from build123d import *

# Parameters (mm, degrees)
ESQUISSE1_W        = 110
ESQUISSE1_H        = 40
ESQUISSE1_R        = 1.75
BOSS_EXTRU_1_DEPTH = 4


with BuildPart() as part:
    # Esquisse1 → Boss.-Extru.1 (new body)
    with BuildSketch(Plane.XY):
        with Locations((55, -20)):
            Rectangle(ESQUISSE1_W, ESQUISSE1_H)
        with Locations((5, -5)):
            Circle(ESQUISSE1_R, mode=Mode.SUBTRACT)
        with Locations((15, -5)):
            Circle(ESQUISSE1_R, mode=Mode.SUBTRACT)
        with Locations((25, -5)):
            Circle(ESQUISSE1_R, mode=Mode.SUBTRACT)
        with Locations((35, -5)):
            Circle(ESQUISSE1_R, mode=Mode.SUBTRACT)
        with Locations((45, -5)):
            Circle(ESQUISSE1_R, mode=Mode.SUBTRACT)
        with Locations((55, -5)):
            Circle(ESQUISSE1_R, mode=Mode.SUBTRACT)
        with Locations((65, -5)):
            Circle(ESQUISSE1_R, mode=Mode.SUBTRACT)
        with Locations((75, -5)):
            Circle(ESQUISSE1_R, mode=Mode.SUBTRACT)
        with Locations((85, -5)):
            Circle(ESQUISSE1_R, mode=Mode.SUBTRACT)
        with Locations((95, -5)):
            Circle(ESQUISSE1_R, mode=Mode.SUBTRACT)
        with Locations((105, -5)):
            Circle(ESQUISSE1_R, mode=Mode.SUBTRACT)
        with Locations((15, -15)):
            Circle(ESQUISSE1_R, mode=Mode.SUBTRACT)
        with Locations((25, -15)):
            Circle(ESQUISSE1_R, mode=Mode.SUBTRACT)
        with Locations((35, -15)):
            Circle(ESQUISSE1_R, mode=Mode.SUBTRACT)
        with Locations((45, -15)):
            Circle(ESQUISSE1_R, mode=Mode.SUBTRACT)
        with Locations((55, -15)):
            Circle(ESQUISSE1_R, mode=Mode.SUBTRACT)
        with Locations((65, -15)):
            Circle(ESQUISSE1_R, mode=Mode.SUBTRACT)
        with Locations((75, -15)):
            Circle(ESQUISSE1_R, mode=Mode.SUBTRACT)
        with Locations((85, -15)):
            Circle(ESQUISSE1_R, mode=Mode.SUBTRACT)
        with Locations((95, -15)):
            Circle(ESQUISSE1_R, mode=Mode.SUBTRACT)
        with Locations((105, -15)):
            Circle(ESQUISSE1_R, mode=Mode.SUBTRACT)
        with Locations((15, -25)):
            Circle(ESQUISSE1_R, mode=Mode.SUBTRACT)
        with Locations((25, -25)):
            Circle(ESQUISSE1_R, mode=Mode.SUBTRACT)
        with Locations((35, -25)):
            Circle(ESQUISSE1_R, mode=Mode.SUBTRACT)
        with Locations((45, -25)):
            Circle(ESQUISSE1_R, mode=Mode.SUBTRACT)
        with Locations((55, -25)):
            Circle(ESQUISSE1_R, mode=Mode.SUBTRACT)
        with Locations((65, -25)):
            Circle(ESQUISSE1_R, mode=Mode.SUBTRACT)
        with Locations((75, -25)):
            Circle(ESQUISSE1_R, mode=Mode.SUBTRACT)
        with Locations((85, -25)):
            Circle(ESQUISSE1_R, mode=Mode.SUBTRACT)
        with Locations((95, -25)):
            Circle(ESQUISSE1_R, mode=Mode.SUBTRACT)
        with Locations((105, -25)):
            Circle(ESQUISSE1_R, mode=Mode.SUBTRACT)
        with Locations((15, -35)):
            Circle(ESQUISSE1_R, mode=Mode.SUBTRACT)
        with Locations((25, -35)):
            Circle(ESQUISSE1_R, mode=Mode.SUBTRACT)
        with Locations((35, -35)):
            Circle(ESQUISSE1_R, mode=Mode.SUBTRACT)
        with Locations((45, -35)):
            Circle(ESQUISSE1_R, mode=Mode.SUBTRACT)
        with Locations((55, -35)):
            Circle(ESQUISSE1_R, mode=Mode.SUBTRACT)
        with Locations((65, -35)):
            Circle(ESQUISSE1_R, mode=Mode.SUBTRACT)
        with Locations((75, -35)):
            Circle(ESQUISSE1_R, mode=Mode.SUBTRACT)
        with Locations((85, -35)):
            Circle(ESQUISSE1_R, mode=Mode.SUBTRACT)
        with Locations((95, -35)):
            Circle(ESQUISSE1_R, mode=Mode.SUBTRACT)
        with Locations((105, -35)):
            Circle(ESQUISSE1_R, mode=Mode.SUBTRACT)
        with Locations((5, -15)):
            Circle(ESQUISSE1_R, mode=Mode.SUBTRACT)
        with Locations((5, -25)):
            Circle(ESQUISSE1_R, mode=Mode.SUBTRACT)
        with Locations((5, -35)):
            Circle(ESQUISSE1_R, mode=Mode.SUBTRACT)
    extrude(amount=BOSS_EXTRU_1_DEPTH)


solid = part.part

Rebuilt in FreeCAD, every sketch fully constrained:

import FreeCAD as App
import Part
import Sketcher

doc = App.newDocument("Part")
body = doc.addObject("PartDesign::Body", "Body")

# Sketch on XY plane
sketch1 = body.newObject("Sketcher::SketchObject", "Sketch")
sketch1.AttachmentSupport = (doc.getObject("XY_Plane"), [""])
sketch1.MapMode = "FlatFace"
sketch1.addGeometry([
    Part.LineSegment(App.Vector(0, 0, 0), App.Vector(0, -40, 0)),  # 0
    Part.LineSegment(App.Vector(0, -40, 0), App.Vector(110, -40, 0)),  # 1
    Part.LineSegment(App.Vector(110, -40, 0), App.Vector(110, 0, 0)),  # 2
    Part.LineSegment(App.Vector(110, 0, 0), App.Vector(0, 0, 0)),  # 3
    Part.Circle(App.Vector(5, -35, 0), App.Vector(0, 0, 1), 1.8),  # 4
    Part.Circle(App.Vector(15, -35, 0), App.Vector(0, 0, 1), 1.8),  # 5
    Part.Circle(App.Vector(25, -35, 0), App.Vector(0, 0, 1), 1.8),  # 6
    Part.Circle(App.Vector(35, -35, 0), App.Vector(0, 0, 1), 1.8),  # 7
    Part.Circle(App.Vector(45, -35, 0), App.Vector(0, 0, 1), 1.8),  # 8
    Part.Circle(App.Vector(5, -25, 0), App.Vector(0, 0, 1), 1.8),  # 9
    Part.Circle(App.Vector(15, -25, 0), App.Vector(0, 0, 1), 1.8),  # 10
    Part.Circle(App.Vector(25, -25, 0), App.Vector(0, 0, 1), 1.8),  # 11
    Part.Circle(App.Vector(35, -25, 0), App.Vector(0, 0, 1), 1.8),  # 12
    Part.Circle(App.Vector(45, -25, 0), App.Vector(0, 0, 1), 1.8),  # 13
    Part.Circle(App.Vector(55, -35, 0), App.Vector(0, 0, 1), 1.8),  # 14
    Part.Circle(App.Vector(65, -35, 0), App.Vector(0, 0, 1), 1.8),  # 15
    Part.Circle(App.Vector(75, -35, 0), App.Vector(0, 0, 1), 1.8),  # 16
    Part.Circle(App.Vector(85, -35, 0), App.Vector(0, 0, 1), 1.8),  # 17
    Part.Circle(App.Vector(95, -35, 0), App.Vector(0, 0, 1), 1.8),  # 18
    Part.Circle(App.Vector(105, -35, 0), App.Vector(0, 0, 1), 1.8),  # 19
    Part.Circle(App.Vector(55, -25, 0), App.Vector(0, 0, 1), 1.8),  # 20
    Part.Circle(App.Vector(65, -25, 0), App.Vector(0, 0, 1), 1.8),  # 21
    Part.Circle(App.Vector(75, -25, 0), App.Vector(0, 0, 1), 1.8),  # 22
    Part.Circle(App.Vector(85, -25, 0), App.Vector(0, 0, 1), 1.8),  # 23
    Part.Circle(App.Vector(95, -25, 0), App.Vector(0, 0, 1), 1.8),  # 24
    Part.Circle(App.Vector(105, -25, 0), App.Vector(0, 0, 1), 1.8),  # 25
    Part.Circle(App.Vector(5, -15, 0), App.Vector(0, 0, 1), 1.8),  # 26
    Part.Circle(App.Vector(15, -15, 0), App.Vector(0, 0, 1), 1.8),  # 27
    Part.Circle(App.Vector(25, -15, 0), App.Vector(0, 0, 1), 1.8),  # 28
    Part.Circle(App.Vector(35, -15, 0), App.Vector(0, 0, 1), 1.8),  # 29
    Part.Circle(App.Vector(45, -15, 0), App.Vector(0, 0, 1), 1.8),  # 30
    Part.Circle(App.Vector(5, -5, 0), App.Vector(0, 0, 1), 1.8),  # 31
    Part.Circle(App.Vector(15, -5, 0), App.Vector(0, 0, 1), 1.8),  # 32
    Part.Circle(App.Vector(25, -5, 0), App.Vector(0, 0, 1), 1.8),  # 33
    Part.Circle(App.Vector(35, -5, 0), App.Vector(0, 0, 1), 1.8),  # 34
    Part.Circle(App.Vector(45, -5, 0), App.Vector(0, 0, 1), 1.8),  # 35
    Part.Circle(App.Vector(55, -15, 0), App.Vector(0, 0, 1), 1.8),  # 36
    Part.Circle(App.Vector(65, -15, 0), App.Vector(0, 0, 1), 1.8),  # 37
    Part.Circle(App.Vector(75, -15, 0), App.Vector(0, 0, 1), 1.8),  # 38
    Part.Circle(App.Vector(85, -15, 0), App.Vector(0, 0, 1), 1.8),  # 39
    Part.Circle(App.Vector(95, -15, 0), App.Vector(0, 0, 1), 1.8),  # 40
    Part.Circle(App.Vector(105, -15, 0), App.Vector(0, 0, 1), 1.8),  # 41
    Part.Circle(App.Vector(55, -5, 0), App.Vector(0, 0, 1), 1.8),  # 42
    Part.Circle(App.Vector(65, -5, 0), App.Vector(0, 0, 1), 1.8),  # 43
    Part.Circle(App.Vector(75, -5, 0), App.Vector(0, 0, 1), 1.8),  # 44
    Part.Circle(App.Vector(85, -5, 0), App.Vector(0, 0, 1), 1.8),  # 45
    Part.Circle(App.Vector(95, -5, 0), App.Vector(0, 0, 1), 1.8),  # 46
    Part.Circle(App.Vector(105, -5, 0), App.Vector(0, 0, 1), 1.8),  # 47
], False)
sketch1.addConstraint([
    Sketcher.Constraint("Coincident", 0, 2, 1, 1),
    Sketcher.Constraint("Coincident", 1, 2, 2, 1),
    Sketcher.Constraint("Coincident", 2, 2, 3, 1),
    Sketcher.Constraint("Coincident", 3, 2, 0, 1),
    Sketcher.Constraint("Vertical", 0),
    Sketcher.Constraint("Horizontal", 1),
    Sketcher.Constraint("Vertical", 2),
    Sketcher.Constraint("Horizontal", 3),
    Sketcher.Constraint("Coincident", 3, 2, -1, 1),
    Sketcher.Constraint("Equal", 4, 5),
    Sketcher.Constraint("Equal", 5, 6),
    Sketcher.Constraint("Equal", 6, 7),
    Sketcher.Constraint("Equal", 7, 8),
    Sketcher.Constraint("Equal", 8, 9),
    Sketcher.Constraint("Equal", 9, 10),
    Sketcher.Constraint("Equal", 10, 11),
    Sketcher.Constraint("Equal", 11, 12),
    Sketcher.Constraint("Equal", 12, 13),
    Sketcher.Constraint("Equal", 13, 14),
    Sketcher.Constraint("Equal", 14, 15),
    Sketcher.Constraint("Equal", 15, 16),
    Sketcher.Constraint("Equal", 16, 17),
    Sketcher.Constraint("Equal", 17, 18),
    Sketcher.Constraint("Equal", 18, 19),
    Sketcher.Constraint("Equal", 19, 20),
    Sketcher.Constraint("Equal", 20, 21),
    Sketcher.Constraint("Equal", 21, 22),
    Sketcher.Constraint("Equal", 22, 23),
    Sketcher.Constraint("Equal", 23, 24),
    Sketcher.Constraint("Equal", 24, 25),
    Sketcher.Constraint("Equal", 25, 26),
    Sketcher.Constraint("Equal", 26, 27),
    Sketcher.Constraint("Equal", 27, 28),
    Sketcher.Constraint("Equal", 28, 29),
    Sketcher.Constraint("Equal", 29, 30),
    Sketcher.Constraint("Equal", 30, 31),
    Sketcher.Constraint("Equal", 31, 32),
    Sketcher.Constraint("Equal", 32, 33),
    Sketcher.Constraint("Equal", 33, 34),
    Sketcher.Constraint("Equal", 34, 35),
    Sketcher.Constraint("Equal", 35, 36),
    Sketcher.Constraint("Equal", 36, 37),
    Sketcher.Constraint("Equal", 37, 38),
    Sketcher.Constraint("Equal", 38, 39),
    Sketcher.Constraint("Equal", 39, 40),
    Sketcher.Constraint("Equal", 40, 41),
    Sketcher.Constraint("Equal", 41, 42),
    Sketcher.Constraint("Equal", 42, 43),
    Sketcher.Constraint("Equal", 43, 44),
    Sketcher.Constraint("Equal", 44, 45),
    Sketcher.Constraint("Equal", 45, 46),
    Sketcher.Constraint("Equal", 46, 47),
    Sketcher.Constraint("Horizontal", 4, 3, 5, 3),
    Sketcher.Constraint("Horizontal", 5, 3, 6, 3),
    Sketcher.Constraint("Horizontal", 6, 3, 7, 3),
    Sketcher.Constraint("Horizontal", 7, 3, 8, 3),
    Sketcher.Constraint("Horizontal", 9, 3, 10, 3),
    Sketcher.Constraint("Horizontal", 10, 3, 11, 3),
    Sketcher.Constraint("Horizontal", 11, 3, 12, 3),
    Sketcher.Constraint("Horizontal", 12, 3, 13, 3),
    Sketcher.Constraint("Horizontal", 8, 3, 14, 3),
    Sketcher.Constraint("Horizontal", 14, 3, 15, 3),
    Sketcher.Constraint("Horizontal", 15, 3, 16, 3),
    Sketcher.Constraint("Horizontal", 16, 3, 17, 3),
    Sketcher.Constraint("Horizontal", 17, 3, 18, 3),
    Sketcher.Constraint("Horizontal", 18, 3, 19, 3),
    Sketcher.Constraint("Horizontal", 13, 3, 20, 3),
    Sketcher.Constraint("Horizontal", 20, 3, 21, 3),
    Sketcher.Constraint("Horizontal", 21, 3, 22, 3),
    Sketcher.Constraint("Horizontal", 22, 3, 23, 3),
    Sketcher.Constraint("Horizontal", 23, 3, 24, 3),
    Sketcher.Constraint("Horizontal", 24, 3, 25, 3),
    Sketcher.Constraint("Horizontal", 26, 3, 27, 3),
    Sketcher.Constraint("Horizontal", 27, 3, 28, 3),
    Sketcher.Constraint("Horizontal", 28, 3, 29, 3),
    Sketcher.Constraint("Horizontal", 29, 3, 30, 3),
    Sketcher.Constraint("Horizontal", 31, 3, 32, 3),
    Sketcher.Constraint("Horizontal", 32, 3, 33, 3),
    Sketcher.Constraint("Horizontal", 33, 3, 34, 3),
    Sketcher.Constraint("Horizontal", 34, 3, 35, 3),
    Sketcher.Constraint("Horizontal", 30, 3, 36, 3),
    Sketcher.Constraint("Horizontal", 36, 3, 37, 3),
    Sketcher.Constraint("Horizontal", 37, 3, 38, 3),
    Sketcher.Constraint("Horizontal", 38, 3, 39, 3),
    Sketcher.Constraint("Horizontal", 39, 3, 40, 3),
    Sketcher.Constraint("Horizontal", 40, 3, 41, 3),
    Sketcher.Constraint("Horizontal", 35, 3, 42, 3),
    Sketcher.Constraint("Horizontal", 42, 3, 43, 3),
    Sketcher.Constraint("Horizontal", 43, 3, 44, 3),
    Sketcher.Constraint("Horizontal", 44, 3, 45, 3),
    Sketcher.Constraint("Horizontal", 45, 3, 46, 3),
    Sketcher.Constraint("Horizontal", 46, 3, 47, 3),
    Sketcher.Constraint("Vertical", 4, 3, 9, 3),
    Sketcher.Constraint("Vertical", 5, 3, 10, 3),
    Sketcher.Constraint("Vertical", 6, 3, 11, 3),
    Sketcher.Constraint("Vertical", 7, 3, 12, 3),
    Sketcher.Constraint("Vertical", 8, 3, 13, 3),
    Sketcher.Constraint("Vertical", 14, 3, 20, 3),
    Sketcher.Constraint("Vertical", 15, 3, 21, 3),
    Sketcher.Constraint("Vertical", 16, 3, 22, 3),
    Sketcher.Constraint("Vertical", 17, 3, 23, 3),
    Sketcher.Constraint("Vertical", 18, 3, 24, 3),
    Sketcher.Constraint("Vertical", 19, 3, 25, 3),
    Sketcher.Constraint("Vertical", 9, 3, 26, 3),
    Sketcher.Constraint("Vertical", 10, 3, 27, 3),
    Sketcher.Constraint("Vertical", 11, 3, 28, 3),
    Sketcher.Constraint("Vertical", 12, 3, 29, 3),
    Sketcher.Constraint("Vertical", 13, 3, 30, 3),
    Sketcher.Constraint("Vertical", 26, 3, 31, 3),
    Sketcher.Constraint("Vertical", 27, 3, 32, 3),
    Sketcher.Constraint("Vertical", 28, 3, 33, 3),
    Sketcher.Constraint("Vertical", 29, 3, 34, 3),
    Sketcher.Constraint("Vertical", 30, 3, 35, 3),
    Sketcher.Constraint("Vertical", 20, 3, 36, 3),
    Sketcher.Constraint("Vertical", 21, 3, 37, 3),
    Sketcher.Constraint("Vertical", 22, 3, 38, 3),
    Sketcher.Constraint("Vertical", 23, 3, 39, 3),
    Sketcher.Constraint("Vertical", 24, 3, 40, 3),
    Sketcher.Constraint("Vertical", 25, 3, 41, 3),
    Sketcher.Constraint("Vertical", 36, 3, 42, 3),
    Sketcher.Constraint("Vertical", 37, 3, 43, 3),
    Sketcher.Constraint("Vertical", 38, 3, 44, 3),
    Sketcher.Constraint("Vertical", 39, 3, 45, 3),
    Sketcher.Constraint("Vertical", 40, 3, 46, 3),
    Sketcher.Constraint("Vertical", 41, 3, 47, 3),
    Sketcher.Constraint("Diameter", 4, 3.5),
    Sketcher.Constraint("DistanceX", 1, 1, 1, 2, 110.0),
    Sketcher.Constraint("DistanceY", 0, 2, 0, 1, 40.0),
    Sketcher.Constraint("DistanceX", -1, 1, 4, 3, 5.0),
    Sketcher.Constraint("DistanceY", 4, 3, -1, 1, 35.0),
    Sketcher.Constraint("DistanceX", -1, 1, 5, 3, 15.0),
    Sketcher.Constraint("DistanceX", -1, 1, 6, 3, 25.0),
    Sketcher.Constraint("DistanceX", -1, 1, 7, 3, 35.0),
    Sketcher.Constraint("DistanceX", -1, 1, 8, 3, 45.0),
    Sketcher.Constraint("DistanceY", 9, 3, -1, 1, 25.0),
    Sketcher.Constraint("DistanceX", -1, 1, 14, 3, 55.0),
    Sketcher.Constraint("DistanceX", -1, 1, 15, 3, 65.0),
    Sketcher.Constraint("DistanceX", -1, 1, 16, 3, 75.0),
    Sketcher.Constraint("DistanceX", -1, 1, 17, 3, 85.0),
    Sketcher.Constraint("DistanceX", -1, 1, 18, 3, 95.0),
    Sketcher.Constraint("DistanceX", -1, 1, 19, 3, 105.0),
    Sketcher.Constraint("DistanceY", 26, 3, -1, 1, 15.0),
    Sketcher.Constraint("DistanceY", 31, 3, -1, 1, 5.0),
])
pad1 = body.newObject("PartDesign::Pad", "Pad")
pad1.Profile = sketch1
pad1.Length = 4

doc.recompute()
